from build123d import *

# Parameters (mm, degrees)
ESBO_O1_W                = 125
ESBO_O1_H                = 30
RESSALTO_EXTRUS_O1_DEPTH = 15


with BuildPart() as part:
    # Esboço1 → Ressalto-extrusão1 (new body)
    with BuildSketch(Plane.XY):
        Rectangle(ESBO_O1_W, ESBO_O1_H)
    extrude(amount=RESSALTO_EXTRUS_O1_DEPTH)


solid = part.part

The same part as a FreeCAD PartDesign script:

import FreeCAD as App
import Part
import Sketcher


def add_polygon(sketch, points):
    """Adds a closed chain of lines whose ends are joined by coincident constraints."""
    first, n = sketch.GeometryCount, len(points)
    for a, b in zip(points, points[1:] + points[:1]):
        sketch.addGeometry(Part.LineSegment(App.Vector(*a, 0), App.Vector(*b, 0)), False)
    for i in range(n):
        sketch.addConstraint(Sketcher.Constraint("Coincident", first + i, 2, first + (i + 1) % n, 1))

doc = App.newDocument("Part")
body = doc.addObject("PartDesign::Body", "Body")

sketch1 = body.newObject("Sketcher::SketchObject", "Sketch")
sketch1.AttachmentSupport = (doc.getObject("XY_Plane"), [""])
sketch1.MapMode = "FlatFace"
add_polygon(sketch1, [(-62.5, 15), (-62.5, -15), (62.5, -15), (62.5, 15)])
sketch1.addConstraint([
    Sketcher.Constraint("Vertical", 0),
    Sketcher.Constraint("Horizontal", 1),
    Sketcher.Constraint("Vertical", 2),
    Sketcher.Constraint("Horizontal", 3),
    Sketcher.Constraint("Symmetric", 0, 2, 2, 2, -1, 1),
    Sketcher.Constraint("DistanceX", 1, 1, 1, 2, 125.0),
    Sketcher.Constraint("DistanceY", 0, 2, 0, 1, 30.0),
])
pad1 = body.newObject("PartDesign::Pad", "Pad")
pad1.Profile = sketch1
pad1.Length = 15

doc.recompute()
